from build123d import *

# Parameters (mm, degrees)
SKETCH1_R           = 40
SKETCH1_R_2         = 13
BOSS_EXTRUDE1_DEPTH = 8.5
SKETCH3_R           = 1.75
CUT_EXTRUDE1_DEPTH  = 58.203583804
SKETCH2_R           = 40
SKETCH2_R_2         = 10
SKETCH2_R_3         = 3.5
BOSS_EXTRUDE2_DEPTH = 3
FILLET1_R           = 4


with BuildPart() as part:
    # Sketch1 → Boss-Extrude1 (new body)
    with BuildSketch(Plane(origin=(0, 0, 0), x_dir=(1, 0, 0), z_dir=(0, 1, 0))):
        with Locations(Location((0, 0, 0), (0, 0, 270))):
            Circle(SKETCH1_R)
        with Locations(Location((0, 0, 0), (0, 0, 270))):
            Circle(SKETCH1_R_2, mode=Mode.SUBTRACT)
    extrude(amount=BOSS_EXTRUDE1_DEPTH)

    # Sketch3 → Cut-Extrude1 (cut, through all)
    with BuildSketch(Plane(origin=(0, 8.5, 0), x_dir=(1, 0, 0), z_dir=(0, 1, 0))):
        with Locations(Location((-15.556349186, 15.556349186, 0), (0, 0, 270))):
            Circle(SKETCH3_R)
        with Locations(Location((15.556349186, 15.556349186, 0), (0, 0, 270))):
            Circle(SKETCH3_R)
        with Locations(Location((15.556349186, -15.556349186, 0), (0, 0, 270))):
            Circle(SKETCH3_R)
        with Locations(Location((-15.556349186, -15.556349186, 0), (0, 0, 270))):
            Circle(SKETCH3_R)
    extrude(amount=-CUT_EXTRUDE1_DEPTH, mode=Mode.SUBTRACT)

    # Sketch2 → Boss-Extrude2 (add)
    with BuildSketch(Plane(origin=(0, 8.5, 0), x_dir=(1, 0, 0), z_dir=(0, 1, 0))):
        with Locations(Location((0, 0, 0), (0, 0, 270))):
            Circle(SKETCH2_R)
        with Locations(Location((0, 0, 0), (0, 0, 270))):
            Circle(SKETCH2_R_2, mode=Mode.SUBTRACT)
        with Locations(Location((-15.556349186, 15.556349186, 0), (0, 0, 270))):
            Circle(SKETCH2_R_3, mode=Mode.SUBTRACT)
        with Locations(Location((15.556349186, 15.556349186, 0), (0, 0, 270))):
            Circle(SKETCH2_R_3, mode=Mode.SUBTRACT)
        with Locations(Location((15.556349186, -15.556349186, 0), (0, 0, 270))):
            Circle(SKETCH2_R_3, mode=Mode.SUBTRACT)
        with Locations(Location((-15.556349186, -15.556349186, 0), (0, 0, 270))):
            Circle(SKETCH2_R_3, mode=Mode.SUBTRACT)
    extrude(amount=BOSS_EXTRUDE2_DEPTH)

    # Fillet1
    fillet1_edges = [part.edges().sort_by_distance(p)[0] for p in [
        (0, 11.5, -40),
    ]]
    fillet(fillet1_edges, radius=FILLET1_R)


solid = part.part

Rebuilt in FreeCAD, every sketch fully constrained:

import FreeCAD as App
import Part
import Sketcher


def edges_at(feature, points):
    """Names of the edges that pass closest to the given points."""
    edges = feature.Shape.Edges
    near = lambda p: min(range(len(edges)), key=lambda i: edges[i].distToShape(Part.Vertex(*p))[0])
    return sorted({f"Edge{near(p) + 1}" for p in points})

doc = App.newDocument("Part")
body = doc.addObject("PartDesign::Body", "Body")

# Sketch on XZ plane
sketch1 = body.newObject("Sketcher::SketchObject", "Sketch")
sketch1.AttachmentSupport = (doc.getObject("XZ_Plane"), [""])
sketch1.MapMode = "FlatFace"
sketch1.addGeometry(Part.Circle(App.Vector(0, 0, 0), App.Vector(0, 0, 1), 40), False)
sketch1.addGeometry(Part.Circle(App.Vector(0, 0, 0), App.Vector(0, 0, 1), 13), False)
sketch1.addConstraint(Sketcher.Constraint("Coincident", 0, 3, -1, 1))
sketch1.addConstraint(Sketcher.Constraint("Coincident", 1, 3, -1, 1))
sketch1.addConstraint(Sketcher.Constraint("Diameter", 0, 80.0))
sketch1.addConstraint(Sketcher.Constraint("Diameter", 1, 26.0))
pad1 = body.newObject("PartDesign::Pad", "Pad")
pad1.Profile = sketch1
pad1.Length = 8.5
pad1.Reversed = True

# Sketch on XZ plane
sketch2 = body.newObject("Sketcher::SketchObject", "Sketch001")
sketch2.AttachmentSupport = (doc.getObject("XZ_Plane"), [""])
sketch2.MapMode = "FlatFace"
sketch2.AttachmentOffset = App.Placement(App.Vector(0, 0, -8.5), App.Rotation())
sketch2.addGeometry(Part.Circle(App.Vector(-15.6, -15.6, 0), App.Vector(0, 0, 1), 1.8), False)
sketch2.addGeometry(Part.Circle(App.Vector(15.6, -15.6, 0), App.Vector(0, 0, 1), 1.8), False)
sketch2.addGeometry(Part.Circle(App.Vector(15.6, 15.6, 0), App.Vector(0, 0, 1), 1.8), False)
sketch2.addGeometry(Part.Circle(App.Vector(-15.6, 15.6, 0), App.Vector(0, 0, 1), 1.8), False)
sketch2.addConstraint(Sketcher.Constraint("Equal", 0, 1))
sketch2.addConstraint(Sketcher.Constraint("Equal", 1, 2))
sketch2.addConstraint(Sketcher.Constraint("Equal", 2, 3))
sketch2.addConstraint(Sketcher.Constraint("Symmetric", 0, 3, 2, 3, -1, 1))
sketch2.addConstraint(Sketcher.Constraint("Symmetric", 1, 3, 3, 3, -1, 1))
sketch2.addConstraint(Sketcher.Constraint("Symmetric", 0, 3, 1, 3, -2))
sketch2.addConstraint(Sketcher.Constraint("Diameter", 0, 3.5))
sketch2.addConstraint(Sketcher.Constraint("DistanceX", 0, 3, 1, 3, 31.112698))
sketch2.addConstraint(Sketcher.Constraint("DistanceY", 1, 3, 2, 3, 31.112698))
pocket1 = body.newObject("PartDesign::Pocket", "Pocket")
pocket1.Profile = sketch2
pocket1.Type = "ThroughAll"
pocket1.Reversed = True

# Sketch on XZ plane
sketch3 = body.newObject("Sketcher::SketchObject", "Sketch002")
sketch3.AttachmentSupport = (doc.getObject("XZ_Plane"), [""])
sketch3.MapMode = "FlatFace"
sketch3.AttachmentOffset = App.Placement(App.Vector(0, 0, -8.5), App.Rotation())
sketch3.addGeometry(Part.Circle(App.Vector(0, 0, 0), App.Vector(0, 0, 1), 40), False)
sketch3.addGeometry(Part.Circle(App.Vector(-15.6, -15.6, 0), App.Vector(0, 0, 1), 3.5), False)
sketch3.addGeometry(Part.Circle(App.Vector(-15.6, 15.6, 0), App.Vector(0, 0, 1), 3.5), False)
sketch3.addGeometry(Part.Circle(App.Vector(0, 0, 0), App.Vector(0, 0, 1), 10), False)
sketch3.addGeometry(Part.Circle(App.Vector(15.6, -15.6, 0), App.Vector(0, 0, 1), 3.5), False)
sketch3.addGeometry(Part.Circle(App.Vector(15.6, 15.6, 0), App.Vector(0, 0, 1), 3.5), False)
sketch3.addConstraint(Sketcher.Constraint("Coincident", 0, 3, -1, 1))
sketch3.addConstraint(Sketcher.Constraint("Coincident", 3, 3, -1, 1))
sketch3.addConstraint(Sketcher.Constraint("Equal", 1, 2))
sketch3.addConstraint(Sketcher.Constraint("Equal", 2, 4))
sketch3.addConstraint(Sketcher.Constraint("Equal", 4, 5))
sketch3.addConstraint(Sketcher.Constraint("Symmetric", 2, 3, 4, 3, -1, 1))
sketch3.addConstraint(Sketcher.Constraint("Symmetric", 1, 3, 5, 3, -1, 1))
sketch3.addConstraint(Sketcher.Constraint("Symmetric", 1, 3, 4, 3, -2))
sketch3.addConstraint(Sketcher.Constraint("Diameter", 0, 80.0))
sketch3.addConstraint(Sketcher.Constraint("Diameter", 1, 7.0))
sketch3.addConstraint(Sketcher.Constraint("Diameter", 3, 20.0))
sketch3.addConstraint(Sketcher.Constraint("DistanceY", 1, 3, 2, 3, 31.112698))
sketch3.addConstraint(Sketcher.Constraint("DistanceX", 1, 3, 4, 3, 31.112698))
pad2 = body.newObject("PartDesign::Pad", "Pad001")
pad2.Profile = sketch3
pad2.Length = 3
pad2.Reversed = True
doc.recompute()

fillet = body.newObject("PartDesign::Fillet", "Fillet")
fillet.Base = (pad2, edges_at(pad2, [(0, 11.5, -40)]))
fillet.Radius = 4

doc.recompute()
